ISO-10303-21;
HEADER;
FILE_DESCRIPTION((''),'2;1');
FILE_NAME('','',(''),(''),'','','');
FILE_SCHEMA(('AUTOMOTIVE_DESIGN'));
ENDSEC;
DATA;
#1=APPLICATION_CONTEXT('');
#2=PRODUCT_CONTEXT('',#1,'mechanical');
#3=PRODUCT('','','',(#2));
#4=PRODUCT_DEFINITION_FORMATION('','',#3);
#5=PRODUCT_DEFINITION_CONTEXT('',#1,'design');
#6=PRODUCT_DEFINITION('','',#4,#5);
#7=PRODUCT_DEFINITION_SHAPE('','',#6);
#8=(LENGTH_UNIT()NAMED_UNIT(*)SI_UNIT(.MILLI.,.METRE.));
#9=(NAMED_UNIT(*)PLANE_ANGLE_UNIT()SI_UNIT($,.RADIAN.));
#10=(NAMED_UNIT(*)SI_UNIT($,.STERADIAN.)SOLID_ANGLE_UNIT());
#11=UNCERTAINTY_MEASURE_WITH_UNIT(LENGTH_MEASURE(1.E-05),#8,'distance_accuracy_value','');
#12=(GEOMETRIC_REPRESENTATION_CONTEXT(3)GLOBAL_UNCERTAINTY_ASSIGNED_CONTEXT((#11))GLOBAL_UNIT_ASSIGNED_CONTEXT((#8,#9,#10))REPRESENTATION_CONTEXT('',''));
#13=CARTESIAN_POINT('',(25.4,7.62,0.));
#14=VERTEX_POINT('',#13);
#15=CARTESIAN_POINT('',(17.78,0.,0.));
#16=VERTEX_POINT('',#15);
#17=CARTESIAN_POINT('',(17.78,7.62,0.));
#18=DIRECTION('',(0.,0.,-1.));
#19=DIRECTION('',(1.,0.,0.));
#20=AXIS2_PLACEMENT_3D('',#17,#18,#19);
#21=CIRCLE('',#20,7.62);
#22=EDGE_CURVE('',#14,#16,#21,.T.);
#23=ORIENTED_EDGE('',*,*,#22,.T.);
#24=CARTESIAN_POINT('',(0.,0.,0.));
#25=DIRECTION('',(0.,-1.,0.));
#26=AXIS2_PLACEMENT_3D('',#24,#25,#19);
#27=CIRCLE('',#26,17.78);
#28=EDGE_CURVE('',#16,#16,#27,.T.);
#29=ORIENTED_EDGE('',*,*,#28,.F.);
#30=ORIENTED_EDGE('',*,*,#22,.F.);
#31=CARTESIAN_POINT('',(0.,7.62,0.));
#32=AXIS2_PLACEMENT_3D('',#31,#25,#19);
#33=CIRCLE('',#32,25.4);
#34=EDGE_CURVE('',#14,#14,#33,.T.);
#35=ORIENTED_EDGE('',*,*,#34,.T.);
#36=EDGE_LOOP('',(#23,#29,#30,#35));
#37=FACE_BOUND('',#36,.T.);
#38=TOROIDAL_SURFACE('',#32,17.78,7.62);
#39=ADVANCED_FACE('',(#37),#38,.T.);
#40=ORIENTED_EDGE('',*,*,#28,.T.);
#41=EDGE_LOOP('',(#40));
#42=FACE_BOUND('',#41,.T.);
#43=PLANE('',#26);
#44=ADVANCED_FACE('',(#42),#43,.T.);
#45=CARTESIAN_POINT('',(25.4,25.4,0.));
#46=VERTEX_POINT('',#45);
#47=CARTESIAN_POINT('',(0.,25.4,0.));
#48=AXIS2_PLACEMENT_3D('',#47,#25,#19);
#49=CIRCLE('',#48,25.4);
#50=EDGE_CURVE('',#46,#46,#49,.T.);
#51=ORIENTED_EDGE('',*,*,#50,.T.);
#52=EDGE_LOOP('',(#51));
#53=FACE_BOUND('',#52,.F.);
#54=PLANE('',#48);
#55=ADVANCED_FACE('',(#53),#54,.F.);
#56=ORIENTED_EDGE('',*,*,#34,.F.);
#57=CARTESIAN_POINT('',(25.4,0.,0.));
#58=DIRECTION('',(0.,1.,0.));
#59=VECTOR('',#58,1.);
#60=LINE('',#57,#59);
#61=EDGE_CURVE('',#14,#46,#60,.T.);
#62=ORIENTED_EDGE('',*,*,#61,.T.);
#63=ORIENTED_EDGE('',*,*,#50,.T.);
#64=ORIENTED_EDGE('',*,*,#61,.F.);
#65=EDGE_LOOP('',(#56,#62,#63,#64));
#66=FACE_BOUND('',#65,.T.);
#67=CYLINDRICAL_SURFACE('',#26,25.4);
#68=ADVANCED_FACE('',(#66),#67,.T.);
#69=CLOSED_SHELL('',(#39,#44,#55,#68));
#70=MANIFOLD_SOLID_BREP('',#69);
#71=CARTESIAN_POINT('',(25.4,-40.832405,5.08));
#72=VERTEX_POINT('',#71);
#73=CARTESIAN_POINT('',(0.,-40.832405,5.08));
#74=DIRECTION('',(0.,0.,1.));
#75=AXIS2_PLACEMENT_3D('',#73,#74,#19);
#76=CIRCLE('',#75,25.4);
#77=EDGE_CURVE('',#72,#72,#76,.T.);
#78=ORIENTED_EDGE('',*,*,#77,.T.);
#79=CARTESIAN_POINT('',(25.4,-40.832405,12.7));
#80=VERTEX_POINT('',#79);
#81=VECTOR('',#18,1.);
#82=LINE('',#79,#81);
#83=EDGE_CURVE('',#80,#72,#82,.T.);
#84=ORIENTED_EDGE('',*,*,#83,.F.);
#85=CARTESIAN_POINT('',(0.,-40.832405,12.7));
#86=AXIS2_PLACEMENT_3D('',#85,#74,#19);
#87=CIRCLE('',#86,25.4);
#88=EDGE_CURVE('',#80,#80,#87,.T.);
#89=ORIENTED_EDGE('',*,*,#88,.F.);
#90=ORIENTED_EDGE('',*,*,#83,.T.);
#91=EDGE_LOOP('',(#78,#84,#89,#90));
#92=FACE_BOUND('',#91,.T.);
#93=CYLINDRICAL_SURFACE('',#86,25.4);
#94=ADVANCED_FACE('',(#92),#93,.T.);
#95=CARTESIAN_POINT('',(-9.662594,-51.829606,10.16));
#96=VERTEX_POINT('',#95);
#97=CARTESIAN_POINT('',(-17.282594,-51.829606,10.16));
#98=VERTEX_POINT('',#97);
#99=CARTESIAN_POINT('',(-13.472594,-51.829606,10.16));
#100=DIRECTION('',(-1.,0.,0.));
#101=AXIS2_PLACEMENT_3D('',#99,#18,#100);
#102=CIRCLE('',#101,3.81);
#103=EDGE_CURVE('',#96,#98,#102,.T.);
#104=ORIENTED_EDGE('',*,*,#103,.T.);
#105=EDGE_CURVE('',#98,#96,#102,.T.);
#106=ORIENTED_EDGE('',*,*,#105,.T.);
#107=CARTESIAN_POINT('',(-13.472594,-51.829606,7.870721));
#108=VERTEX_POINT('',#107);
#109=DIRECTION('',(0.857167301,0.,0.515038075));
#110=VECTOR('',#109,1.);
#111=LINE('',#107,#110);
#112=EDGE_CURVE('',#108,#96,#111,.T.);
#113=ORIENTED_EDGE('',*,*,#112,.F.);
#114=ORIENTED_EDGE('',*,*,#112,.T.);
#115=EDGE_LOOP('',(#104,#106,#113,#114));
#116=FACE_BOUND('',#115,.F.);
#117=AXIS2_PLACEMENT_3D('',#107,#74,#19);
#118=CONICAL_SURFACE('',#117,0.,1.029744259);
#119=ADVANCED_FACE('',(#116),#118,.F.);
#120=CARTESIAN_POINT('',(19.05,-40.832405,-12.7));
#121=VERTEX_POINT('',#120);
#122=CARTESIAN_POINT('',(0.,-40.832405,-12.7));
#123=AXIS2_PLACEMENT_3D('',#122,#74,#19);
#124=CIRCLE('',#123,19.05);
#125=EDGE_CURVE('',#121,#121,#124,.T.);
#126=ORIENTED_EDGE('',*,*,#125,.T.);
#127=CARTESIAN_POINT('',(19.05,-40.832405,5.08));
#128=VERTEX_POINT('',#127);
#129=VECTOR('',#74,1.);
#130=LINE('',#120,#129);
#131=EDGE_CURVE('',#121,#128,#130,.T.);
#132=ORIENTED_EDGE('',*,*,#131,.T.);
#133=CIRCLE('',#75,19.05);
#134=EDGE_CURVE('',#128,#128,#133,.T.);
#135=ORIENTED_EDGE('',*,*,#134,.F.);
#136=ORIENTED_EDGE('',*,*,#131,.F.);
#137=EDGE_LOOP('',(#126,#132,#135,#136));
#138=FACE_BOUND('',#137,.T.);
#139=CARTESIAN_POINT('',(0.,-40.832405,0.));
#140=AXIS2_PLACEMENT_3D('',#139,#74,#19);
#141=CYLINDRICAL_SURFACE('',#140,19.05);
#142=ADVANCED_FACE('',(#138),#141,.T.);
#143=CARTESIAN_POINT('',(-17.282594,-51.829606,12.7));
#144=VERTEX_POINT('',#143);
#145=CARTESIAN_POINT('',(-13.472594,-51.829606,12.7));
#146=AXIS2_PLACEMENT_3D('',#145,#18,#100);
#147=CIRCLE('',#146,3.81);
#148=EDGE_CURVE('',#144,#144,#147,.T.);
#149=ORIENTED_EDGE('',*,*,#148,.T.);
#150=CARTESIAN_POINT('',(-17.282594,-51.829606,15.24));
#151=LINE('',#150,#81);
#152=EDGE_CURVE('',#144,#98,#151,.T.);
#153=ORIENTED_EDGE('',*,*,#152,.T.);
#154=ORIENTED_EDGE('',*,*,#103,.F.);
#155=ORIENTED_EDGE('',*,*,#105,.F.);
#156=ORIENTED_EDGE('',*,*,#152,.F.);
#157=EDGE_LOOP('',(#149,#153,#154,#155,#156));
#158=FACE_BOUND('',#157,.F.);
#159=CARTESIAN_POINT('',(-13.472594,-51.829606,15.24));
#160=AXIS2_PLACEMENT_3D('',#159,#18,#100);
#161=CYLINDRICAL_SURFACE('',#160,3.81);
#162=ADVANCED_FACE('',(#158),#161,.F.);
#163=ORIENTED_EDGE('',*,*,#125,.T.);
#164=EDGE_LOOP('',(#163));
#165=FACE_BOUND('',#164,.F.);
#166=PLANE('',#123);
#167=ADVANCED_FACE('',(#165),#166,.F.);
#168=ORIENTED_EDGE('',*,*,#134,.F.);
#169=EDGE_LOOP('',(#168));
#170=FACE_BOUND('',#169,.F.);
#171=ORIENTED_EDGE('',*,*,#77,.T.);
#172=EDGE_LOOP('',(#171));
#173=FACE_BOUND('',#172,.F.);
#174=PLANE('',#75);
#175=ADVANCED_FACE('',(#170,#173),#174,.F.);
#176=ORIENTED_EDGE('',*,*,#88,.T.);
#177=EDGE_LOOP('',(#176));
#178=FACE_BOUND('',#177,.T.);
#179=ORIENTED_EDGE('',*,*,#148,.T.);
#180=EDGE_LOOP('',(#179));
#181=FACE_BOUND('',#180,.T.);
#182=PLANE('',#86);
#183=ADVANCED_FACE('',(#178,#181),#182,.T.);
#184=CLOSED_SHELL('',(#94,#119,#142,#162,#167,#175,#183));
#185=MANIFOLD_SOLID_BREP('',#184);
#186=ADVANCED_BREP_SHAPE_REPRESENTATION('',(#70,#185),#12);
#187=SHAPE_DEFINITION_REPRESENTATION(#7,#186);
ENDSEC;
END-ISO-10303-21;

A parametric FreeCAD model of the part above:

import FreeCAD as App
import Part
import Sketcher
Q = App.Units.Quantity


def edges_at(feature, points):
    """Names of the edges that pass closest to the given points."""
    edges = feature.Shape.Edges
    near = lambda p: min(range(len(edges)), key=lambda i: edges[i].distToShape(Part.Vertex(*p))[0])
    return sorted({f"Edge{near(p) + 1}" for p in points})

doc = App.newDocument("Part")
body = doc.addObject("PartDesign::Body", "Body")

# Sketch on XZ plane
sketch1 = body.newObject("Sketcher::SketchObject", "Sketch")
sketch1.AttachmentSupport = (doc.getObject("XZ_Plane"), [""])
sketch1.MapMode = "FlatFace"
sketch1.addGeometry(Part.Circle(App.Vector(0, 0, 0), App.Vector(0, 0, 1), 25), False)
sketch1.addConstraint([
    Sketcher.Constraint("Coincident", 0, 3, -1, 1),
    Sketcher.Constraint("Diameter", 0, Q("2 in")),
])
pad1 = body.newObject("PartDesign::Pad", "Pad")
pad1.Profile = sketch1
pad1.Length = Q("1 in")
pad1.Reversed = True
doc.recompute()

fillet = body.newObject("PartDesign::Fillet", "Fillet")
fillet.Base = (pad1, edges_at(pad1, [(-25.4, 0, 0)]))
fillet.Radius = Q("0.3 in")
body2 = doc.addObject("PartDesign::Body", "Body001")

# Sketch on XY plane
sketch2 = body2.newObject("Sketcher::SketchObject", "Sketch001")
sketch2.AttachmentSupport = (doc.getObject("XY_Plane001"), [""])
sketch2.MapMode = "FlatFace"
sketch2.addGeometry(Part.Circle(App.Vector(0, -41, 0), App.Vector(0, 0, 1), 19), False)
sketch2.addConstraint([
    Sketcher.Constraint("PointOnObject", 0, 3, -2),
    Sketcher.Constraint("Diameter", 0, Q("1.5 in")),
    Sketcher.Constraint("DistanceY", 0, 3, -1, 1, Q("40.832405 mm")),
])
pad2 = body2.newObject("PartDesign::Pad", "Pad001")
pad2.Profile = sketch2
pad2.Length = Q("1 in")
pad2.Midplane = True

# Sketch on XY plane
sketch3 = body2.newObject("Sketcher::SketchObject", "Sketch002")
sketch3.AttachmentSupport = (doc.getObject("XY_Plane001"), [""])
sketch3.MapMode = "FlatFace"
sketch3.AttachmentOffset = App.Placement(App.Vector(0, 0, 0.5 * 25.4), App.Rotation())
sketch3.addGeometry([
    Part.Circle(App.Vector(0, -41, 0), App.Vector(0, 0, 1), 25),
    Part.Circle(App.Vector(0, -41, 0), App.Vector(0, 0, 1), 19),
], False)
sketch3.addConstraint([
    Sketcher.Constraint("Coincident", 1, 3, 0, 3),
    Sketcher.Constraint("PointOnObject", 0, 3, -2),
    Sketcher.Constraint("Diameter", 0, Q("2 in")),
    Sketcher.Constraint("Diameter", 1, Q("1.5 in")),
    Sketcher.Constraint("DistanceY", 0, 3, -1, 1, Q("40.832405 mm")),
])
pad3 = body2.newObject("PartDesign::Pad", "Pad002")
pad3.Profile = sketch3
pad3.Length = Q("0.3 in")
pad3.Reversed = True

# Sketch on XY plane
sketch4 = body2.newObject("Sketcher::SketchObject", "Sketch003")
sketch4.AttachmentSupport = (doc.getObject("XY_Plane001"), [""])
sketch4.MapMode = "FlatFace"
sketch4.AttachmentOffset = App.Placement(App.Vector(0, 0, 0.5 * 25.4), App.Rotation())
sketch4.addGeometry(Part.Circle(App.Vector(-13.5, -51.8, 0), App.Vector(0, 0, 1), 3.8), False)
sketch4.addConstraint([
    Sketcher.Constraint("Diameter", 0, Q("0.3 in")),
    Sketcher.Constraint("DistanceX", 0, 3, -1, 1, Q("13.472594 mm")),
    Sketcher.Constraint("DistanceY", 0, 3, -1, 1, Q("51.829606 mm")),
])
doc.recompute()
hole = body2.newObject("PartDesign::Hole", "Hole")
hole.Profile = sketch4
hole.ThreadType = "None"
hole.Diameter = Q("0.3 in")
hole.DepthType = "Dimension"
hole.Depth = Q("0.1 in")
hole.DrillPoint = "Angled"
hole.DrillPointAngle = 118

doc.recompute()
